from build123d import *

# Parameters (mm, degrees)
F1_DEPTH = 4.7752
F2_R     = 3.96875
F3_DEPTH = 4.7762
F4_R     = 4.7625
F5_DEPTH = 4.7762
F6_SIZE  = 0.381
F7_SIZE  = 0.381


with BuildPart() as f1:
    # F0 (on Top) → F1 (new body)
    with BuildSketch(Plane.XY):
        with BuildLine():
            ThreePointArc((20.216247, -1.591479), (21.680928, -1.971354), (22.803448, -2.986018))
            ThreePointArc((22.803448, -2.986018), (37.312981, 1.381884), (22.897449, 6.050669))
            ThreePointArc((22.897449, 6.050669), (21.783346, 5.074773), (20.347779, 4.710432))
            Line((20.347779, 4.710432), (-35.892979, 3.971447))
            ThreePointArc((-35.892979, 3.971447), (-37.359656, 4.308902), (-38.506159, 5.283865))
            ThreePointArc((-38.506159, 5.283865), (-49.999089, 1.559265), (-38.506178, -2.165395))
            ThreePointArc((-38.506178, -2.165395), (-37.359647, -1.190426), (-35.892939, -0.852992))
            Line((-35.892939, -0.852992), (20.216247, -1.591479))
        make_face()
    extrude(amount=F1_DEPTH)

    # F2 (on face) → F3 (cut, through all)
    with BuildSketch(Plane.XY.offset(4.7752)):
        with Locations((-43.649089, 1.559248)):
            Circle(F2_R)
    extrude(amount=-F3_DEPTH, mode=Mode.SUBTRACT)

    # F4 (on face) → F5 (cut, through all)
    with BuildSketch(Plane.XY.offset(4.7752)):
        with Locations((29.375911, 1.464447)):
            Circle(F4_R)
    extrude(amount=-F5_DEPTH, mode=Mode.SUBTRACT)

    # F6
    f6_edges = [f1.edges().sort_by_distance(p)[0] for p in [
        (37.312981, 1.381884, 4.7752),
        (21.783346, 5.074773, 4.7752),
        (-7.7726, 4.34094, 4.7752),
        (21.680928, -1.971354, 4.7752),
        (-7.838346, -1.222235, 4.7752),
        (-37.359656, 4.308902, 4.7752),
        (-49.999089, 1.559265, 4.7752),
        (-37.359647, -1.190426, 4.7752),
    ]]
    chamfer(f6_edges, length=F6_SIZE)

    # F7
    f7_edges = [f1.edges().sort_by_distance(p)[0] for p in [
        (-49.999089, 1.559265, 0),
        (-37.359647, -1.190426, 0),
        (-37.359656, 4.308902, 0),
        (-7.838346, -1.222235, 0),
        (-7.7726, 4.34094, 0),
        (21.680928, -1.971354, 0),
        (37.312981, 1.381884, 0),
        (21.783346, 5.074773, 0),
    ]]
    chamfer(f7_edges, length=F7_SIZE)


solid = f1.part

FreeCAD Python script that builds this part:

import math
import FreeCAD as App
import Part
import Sketcher

V = App.Vector
Q = App.Units.Quantity


def edges_at(feature, points):
    """Names of the edges that pass closest to the given points."""
    edges = feature.Shape.Edges
    near = lambda p: min(range(len(edges)), key=lambda i: edges[i].distToShape(Part.Vertex(*p))[0])
    return sorted({f"Edge{near(p) + 1}" for p in points})

doc = App.newDocument("Part")
params = doc.addObject("Spreadsheet::Sheet", "Params")
for row, (alias, value) in enumerate([
    ("sketch1_radius", "0.25 in"),
    ("sketch1_radius2", "0.1250001 in"),
    ("sketch1_radius3", "0.3125 in"),
    ("pad1_length", "0.188 in"),
    ("sketch2_diameter", "0.3125 in"),
    ("sketch3_diameter", "0.375 in"),
    ("chamfer_size", "0.015 in"),
    ("chamfer2_size", "0.015 in"),
], start=1):
    params.set(f"A{row}", alias)
    params.set(f"B{row}", "=" + value)
    params.setAlias(f"B{row}", alias)

body = doc.addObject("PartDesign::Body", "Body")

sketch1 = body.newObject("Sketcher::SketchObject", "Sketch")
sketch1.AttachmentSupport = (doc.getObject("XY_Plane"), [""])
sketch1.MapMode = "FlatFace"
sketch1.addGeometry([
    Part.ArcOfCircle(Part.Circle(V(20.2, -4.8, 0), V(0, 0, 1), 3.2), math.radians(34), math.radians(89)),
    Part.ArcOfCircle(Part.Circle(V(29.4, 1.5, 0), V(0, 0, 1), 7.9), math.radians(-146), math.radians(145)),
    Part.ArcOfCircle(Part.Circle(V(20.3, 7.9, 0), V(0, 0, 1), 3.2), math.radians(-89), math.radians(-35)),
    Part.LineSegment(V(20.3, 4.7, 0), V(-35.9, 4, 0)),
    Part.ArcOfCircle(Part.Circle(V(-35.9, 7.1, 0), V(0, 0, 1), 3.2), math.radians(-144), math.radians(-89)),
    Part.ArcOfCircle(Part.Circle(V(-43.6, 1.6, 0), V(0, 0, 1), 6.3), math.radians(36), math.radians(324)),
    Part.ArcOfCircle(Part.Circle(V(-35.9, -4, 0), V(0, 0, 1), 3.2), math.radians(89), math.radians(144)),
    Part.LineSegment(V(-35.9, -0.9, 0), V(20.2, -1.6, 0)),
], False)
sketch1.addConstraint([
    Sketcher.Constraint("Tangent", 0, 1, 1, 1),
    Sketcher.Constraint("Tangent", 1, 2, 2, 2),
    Sketcher.Constraint("Tangent", 2, 1, 3, 1),
    Sketcher.Constraint("Tangent", 3, 2, 4, 2),
    Sketcher.Constraint("Tangent", 4, 1, 5, 1),
    Sketcher.Constraint("Tangent", 5, 2, 6, 2),
    Sketcher.Constraint("Tangent", 6, 1, 7, 1),
    Sketcher.Constraint("Tangent", 7, 2, 0, 2),
    Sketcher.Constraint("Equal", 0, 2),
    Sketcher.Constraint("Equal", 2, 4),
    Sketcher.Constraint("Radius", 5, Q("0.25 in")),
    Sketcher.Constraint("Radius", 0, Q("0.1250001 in")),
    Sketcher.Constraint("Radius", 1, Q("0.3125 in")),
    Sketcher.Constraint("DistanceX", 5, 3, 1, 3, Q("2.875 in")),
    Sketcher.Constraint("Radius", 6, Q("3.174995 mm")),
    Sketcher.Constraint("DistanceY", 1, 3, 5, 3, Q("0.094801 mm")),
    Sketcher.Constraint("DistanceX", 0, 1, 1, 2, Q("0.094001 mm")),
    Sketcher.Constraint("DistanceY", 5, 3, 3, 2, Q("2.412199 mm")),
    Sketcher.Constraint("DistanceX", 5, 2, 3, 2, Q("2.613199 mm")),
    Sketcher.Constraint("DistanceX", 7, 2, 0, 1, Q("2.587201 mm")),
    Sketcher.Constraint("DistanceX", -1, 1, 1, 3, Q("29.375911 mm")),
    Sketcher.Constraint("DistanceY", -1, 1, 5, 3, Q("1.559248 mm")),
])
sketch1.setExpression("Constraints[10]", "Params.sketch1_radius")
sketch1.setExpression("Constraints[11]", "Params.sketch1_radius2")
sketch1.setExpression("Constraints[12]", "Params.sketch1_radius3")
pad1 = body.newObject("PartDesign::Pad", "Pad")
pad1.Profile = sketch1
pad1.setExpression("Length", "Params.pad1_length")

sketch2 = body.newObject("Sketcher::SketchObject", "Sketch001")
sketch2.AttachmentSupport = (doc.getObject("XY_Plane"), [""])
sketch2.MapMode = "FlatFace"
sketch2.AttachmentOffset = App.Placement(V(0, 0, 0.188 * 25.4), App.Rotation())
sketch2.addGeometry(Part.Circle(V(-43.6, 1.6, 0), V(0, 0, 1), 4), False)
sketch2.addConstraint([
    Sketcher.Constraint("Diameter", 0, Q("0.3125 in")),
    Sketcher.Constraint("DistanceX", 0, 3, -1, 1, Q("43.649089 mm")),
    Sketcher.Constraint("DistanceY", -1, 1, 0, 3, Q("1.559248 mm")),
])
sketch2.setExpression("Constraints[0]", "Params.sketch2_diameter")
pocket1 = body.newObject("PartDesign::Pocket", "Pocket")
pocket1.Profile = sketch2
pocket1.Type = "ThroughAll"

sketch3 = body.newObject("Sketcher::SketchObject", "Sketch002")
sketch3.AttachmentSupport = (doc.getObject("XY_Plane"), [""])
sketch3.MapMode = "FlatFace"
sketch3.AttachmentOffset = App.Placement(V(0, 0, 0.188 * 25.4), App.Rotation())
sketch3.addGeometry(Part.Circle(V(29.4, 1.5, 0), V(0, 0, 1), 4.8), False)
sketch3.addConstraint([
    Sketcher.Constraint("Diameter", 0, Q("0.375 in")),
    Sketcher.Constraint("DistanceX", -1, 1, 0, 3, Q("29.375911 mm")),
    Sketcher.Constraint("DistanceY", -1, 1, 0, 3, Q("1.464447 mm")),
])
sketch3.setExpression("Constraints[0]", "Params.sketch3_diameter")
pocket2 = body.newObject("PartDesign::Pocket", "Pocket001")
pocket2.Profile = sketch3
pocket2.Type = "ThroughAll"
doc.recompute()

chamfer = body.newObject("PartDesign::Chamfer", "Chamfer")
chamfer.Base = (pocket2, edges_at(pocket2, [
    (37.313, 1.382, 4.775),
    (21.783, 5.075, 4.775),
    (-7.773, 4.341, 4.775),
    (21.681, -1.971, 4.775),
    (-7.838, -1.222, 4.775),
    (-37.36, 4.309, 4.775),
    (-49.999, 1.559, 4.775),
    (-37.36, -1.19, 4.775),
]))
chamfer.setExpression("Size", "Params.chamfer_size")
doc.recompute()

chamfer2 = body.newObject("PartDesign::Chamfer", "Chamfer001")
chamfer2.Base = (chamfer, edges_at(chamfer, [
    (-49.999, 1.559, 0),
    (-37.36, -1.19, 0),
    (-37.36, 4.309, 0),
    (-7.838, -1.222, 0),
    (-7.773, 4.341, 0),
    (21.681, -1.971, 0),
    (37.313, 1.382, 0),
    (21.783, 5.075, 0),
]))
chamfer2.setExpression("Size", "Params.chamfer2_size")

doc.recompute()
